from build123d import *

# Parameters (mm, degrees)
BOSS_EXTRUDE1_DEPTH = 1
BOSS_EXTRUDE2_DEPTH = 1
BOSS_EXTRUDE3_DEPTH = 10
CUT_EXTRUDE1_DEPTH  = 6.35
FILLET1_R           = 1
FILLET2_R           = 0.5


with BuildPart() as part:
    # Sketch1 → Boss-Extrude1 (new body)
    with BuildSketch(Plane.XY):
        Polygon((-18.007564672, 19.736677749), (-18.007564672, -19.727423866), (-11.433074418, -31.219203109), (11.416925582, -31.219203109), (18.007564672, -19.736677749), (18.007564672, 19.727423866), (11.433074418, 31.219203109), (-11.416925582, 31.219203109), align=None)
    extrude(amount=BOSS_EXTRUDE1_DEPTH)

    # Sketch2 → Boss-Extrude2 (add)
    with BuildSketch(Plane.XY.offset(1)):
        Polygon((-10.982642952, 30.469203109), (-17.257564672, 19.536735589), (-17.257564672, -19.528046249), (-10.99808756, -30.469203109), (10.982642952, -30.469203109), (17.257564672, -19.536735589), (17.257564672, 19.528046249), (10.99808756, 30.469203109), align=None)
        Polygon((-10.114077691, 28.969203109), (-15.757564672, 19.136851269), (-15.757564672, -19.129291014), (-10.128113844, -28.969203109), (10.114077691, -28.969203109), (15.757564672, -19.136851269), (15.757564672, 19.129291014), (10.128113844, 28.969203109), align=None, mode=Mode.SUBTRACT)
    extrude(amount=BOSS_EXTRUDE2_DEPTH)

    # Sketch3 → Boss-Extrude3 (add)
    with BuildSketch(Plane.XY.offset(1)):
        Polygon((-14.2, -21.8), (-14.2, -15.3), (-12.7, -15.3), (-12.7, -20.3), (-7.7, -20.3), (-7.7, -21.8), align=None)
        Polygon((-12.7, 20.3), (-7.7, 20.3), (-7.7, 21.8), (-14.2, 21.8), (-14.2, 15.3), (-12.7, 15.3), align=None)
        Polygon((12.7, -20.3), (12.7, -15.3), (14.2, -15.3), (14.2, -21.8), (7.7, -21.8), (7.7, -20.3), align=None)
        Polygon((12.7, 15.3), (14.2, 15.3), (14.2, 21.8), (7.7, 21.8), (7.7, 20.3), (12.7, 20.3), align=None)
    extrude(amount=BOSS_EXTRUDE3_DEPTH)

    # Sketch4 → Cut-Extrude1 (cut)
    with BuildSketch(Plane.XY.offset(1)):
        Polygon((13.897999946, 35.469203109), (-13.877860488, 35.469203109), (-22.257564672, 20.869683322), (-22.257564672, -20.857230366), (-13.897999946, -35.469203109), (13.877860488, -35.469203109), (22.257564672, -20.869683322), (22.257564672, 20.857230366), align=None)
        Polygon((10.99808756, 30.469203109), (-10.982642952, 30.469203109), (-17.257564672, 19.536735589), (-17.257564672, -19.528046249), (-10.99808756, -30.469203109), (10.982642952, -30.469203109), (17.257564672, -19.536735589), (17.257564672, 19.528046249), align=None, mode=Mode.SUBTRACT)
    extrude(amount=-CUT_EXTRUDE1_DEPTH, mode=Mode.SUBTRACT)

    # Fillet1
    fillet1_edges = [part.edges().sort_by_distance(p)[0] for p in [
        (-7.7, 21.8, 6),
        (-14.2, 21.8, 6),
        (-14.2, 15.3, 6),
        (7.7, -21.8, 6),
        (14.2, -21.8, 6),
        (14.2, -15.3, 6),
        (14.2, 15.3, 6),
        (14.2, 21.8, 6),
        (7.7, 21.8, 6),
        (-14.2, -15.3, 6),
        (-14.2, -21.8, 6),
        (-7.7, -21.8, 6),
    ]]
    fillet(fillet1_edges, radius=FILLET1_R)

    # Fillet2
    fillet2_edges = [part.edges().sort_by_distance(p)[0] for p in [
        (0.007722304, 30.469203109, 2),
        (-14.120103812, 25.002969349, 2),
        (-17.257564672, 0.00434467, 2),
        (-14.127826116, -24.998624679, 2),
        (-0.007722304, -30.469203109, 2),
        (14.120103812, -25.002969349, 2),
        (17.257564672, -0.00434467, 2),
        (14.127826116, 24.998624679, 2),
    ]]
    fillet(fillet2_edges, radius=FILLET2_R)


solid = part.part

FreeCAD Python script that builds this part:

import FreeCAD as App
import Part
import Sketcher

V = App.Vector


def edges_at(feature, points):
    """Names of the edges that pass closest to the given points."""
    edges = feature.Shape.Edges
    near = lambda p: min(range(len(edges)), key=lambda i: edges[i].distToShape(Part.Vertex(*p))[0])
    return sorted({f"Edge{near(p) + 1}" for p in points})

doc = App.newDocument("Part")
params = doc.addObject("Spreadsheet::Sheet", "Params")
for row, (alias, value) in enumerate([
    ("sketch1_width", "22.85 mm"),
    ("pad1_length", "1 mm"),
    ("pad2_length", "1 mm"),
    ("sketch3_width", "5 mm"),
    ("sketch3_width2", "6.5 mm"),
    ("pad3_length", "10 mm"),
    ("pocket1_length", "6.35 mm"),
    ("fillet_radius", "1 mm"),
    ("fillet2_radius", "0.5 mm"),
], start=1):
    params.set(f"A{row}", alias)
    params.set(f"B{row}", "=" + value)
    params.setAlias(f"B{row}", alias)

body = doc.addObject("PartDesign::Body", "Body")

# Sketch on XY plane
sketch1 = body.newObject("Sketcher::SketchObject", "Sketch")
sketch1.AttachmentSupport = (doc.getObject("XY_Plane"), [""])
sketch1.MapMode = "FlatFace"
sketch1.addGeometry([
    Part.LineSegment(V(-18, 20, 0), V(-18, -20, 0)),  # 0
    Part.LineSegment(V(-18, -20, 0), V(-11, -31, 0)),  # 1
    Part.LineSegment(V(-11, -31, 0), V(11, -31, 0)),  # 2
    Part.LineSegment(V(11, -31, 0), V(18, -20, 0)),  # 3
    Part.LineSegment(V(18, -20, 0), V(18, 20, 0)),  # 4
    Part.LineSegment(V(18, 20, 0), V(11, 31, 0)),  # 5
    Part.LineSegment(V(11, 31, 0), V(-11, 31, 0)),  # 6
    Part.LineSegment(V(-11, 31, 0), V(-18, 20, 0)),  # 7
], False)
sketch1.addConstraint([
    Sketcher.Constraint("Coincident", 0, 2, 1, 1),
    Sketcher.Constraint("Coincident", 1, 2, 2, 1),
    Sketcher.Constraint("Coincident", 2, 2, 3, 1),
    Sketcher.Constraint("Coincident", 3, 2, 4, 1),
    Sketcher.Constraint("Coincident", 4, 2, 5, 1),
    Sketcher.Constraint("Coincident", 5, 2, 6, 1),
    Sketcher.Constraint("Coincident", 6, 2, 7, 1),
    Sketcher.Constraint("Coincident", 7, 2, 0, 1),
    Sketcher.Constraint("Vertical", 0),
    Sketcher.Constraint("Horizontal", 2),
    Sketcher.Constraint("Vertical", 4),
    Sketcher.Constraint("Horizontal", 6),
    Sketcher.Constraint("Symmetric", 0, 2, 4, 2, -1, 1),
    Sketcher.Constraint("Symmetric", 1, 2, 5, 2, -1, 1),
    Sketcher.Constraint("Parallel", 3, 7),
    Sketcher.Constraint("Equal", 2, 6),
    Sketcher.Constraint("Equal", 1, 3),
    Sketcher.Constraint("DistanceX", 2, 1, 2, 2, 22.85),
    Sketcher.Constraint("DistanceY", 0, 2, 0, 1, 39.464102),
    Sketcher.Constraint("Distance", 1, 13.239521),
    Sketcher.Constraint("DistanceX", 0, 2, 1, 2, 6.57449),
    Sketcher.Constraint("DistanceX", 2, 2, 3, 2, 6.590639),
])
sketch1.setExpression("Constraints[17]", "Params.sketch1_width")
pad1 = body.newObject("PartDesign::Pad", "Pad")
pad1.Profile = sketch1
pad1.setExpression("Length", "Params.pad1_length")

# Sketch on XY plane
sketch2 = body.newObject("Sketcher::SketchObject", "Sketch001")
sketch2.AttachmentSupport = (doc.getObject("XY_Plane"), [""])
sketch2.MapMode = "FlatFace"
sketch2.AttachmentOffset = App.Placement(V(0, 0, 1), App.Rotation())
sketch2.addGeometry([
    Part.LineSegment(V(-10.982643, 30.469203, 0), V(-17.257565, 19.536736, 0)),  # 0
    Part.LineSegment(V(-17.257565, 19.536736, 0), V(-17.257565, -19.528046, 0)),  # 1
    Part.LineSegment(V(-17.257565, -19.528046, 0), V(-10.998088, -30.469203, 0)),  # 2
    Part.LineSegment(V(-10.998088, -30.469203, 0), V(10.982643, -30.469203, 0)),  # 3
    Part.LineSegment(V(10.982643, -30.469203, 0), V(17.257565, -19.536736, 0)),  # 4
    Part.LineSegment(V(17.257565, -19.536736, 0), V(17.257565, 19.528046, 0)),  # 5
    Part.LineSegment(V(17.257565, 19.528046, 0), V(10.998088, 30.469203, 0)),  # 6
    Part.LineSegment(V(10.998088, 30.469203, 0), V(-10.982643, 30.469203, 0)),  # 7
    Part.LineSegment(V(-15.757565, 19.136851, 0), V(-10.114078, 28.969203, 0)),  # 8
    Part.LineSegment(V(-10.114078, 28.969203, 0), V(10.128114, 28.969203, 0)),  # 9
    Part.LineSegment(V(10.128114, 28.969203, 0), V(15.757565, 19.129291, 0)),  # 10
    Part.LineSegment(V(15.757565, 19.129291, 0), V(15.757565, -19.136851, 0)),  # 11
    Part.LineSegment(V(15.757565, -19.136851, 0), V(10.114078, -28.969203, 0)),  # 12
    Part.LineSegment(V(10.114078, -28.969203, 0), V(-10.128114, -28.969203, 0)),  # 13
    Part.LineSegment(V(-10.128114, -28.969203, 0), V(-15.757565, -19.129291, 0)),  # 14
    Part.LineSegment(V(-15.757565, -19.129291, 0), V(-15.757565, 19.136851, 0)),  # 15
], False)
sketch2.addConstraint([
    Sketcher.Constraint("Coincident", 0, 2, 1, 1),
    Sketcher.Constraint("Coincident", 1, 2, 2, 1),
    Sketcher.Constraint("Coincident", 2, 2, 3, 1),
    Sketcher.Constraint("Coincident", 3, 2, 4, 1),
    Sketcher.Constraint("Coincident", 4, 2, 5, 1),
    Sketcher.Constraint("Coincident", 5, 2, 6, 1),
    Sketcher.Constraint("Coincident", 6, 2, 7, 1),
    Sketcher.Constraint("Coincident", 7, 2, 0, 1),
    Sketcher.Constraint("Coincident", 8, 2, 9, 1),
    Sketcher.Constraint("Coincident", 9, 2, 10, 1),
    Sketcher.Constraint("Coincident", 10, 2, 11, 1),
    Sketcher.Constraint("Coincident", 11, 2, 12, 1),
    Sketcher.Constraint("Coincident", 12, 2, 13, 1),
    Sketcher.Constraint("Coincident", 13, 2, 14, 1),
    Sketcher.Constraint("Coincident", 14, 2, 15, 1),
    Sketcher.Constraint("Coincident", 15, 2, 8, 1),
    Sketcher.Constraint("Vertical", 1),
    Sketcher.Constraint("Horizontal", 3),
    Sketcher.Constraint("Vertical", 5),
    Sketcher.Constraint("Horizontal", 7),
    Sketcher.Constraint("Horizontal", 9),
    Sketcher.Constraint("Vertical", 11),
    Sketcher.Constraint("Horizontal", 13),
    Sketcher.Constraint("Vertical", 15),
    Sketcher.Constraint("Symmetric", 0, 2, 4, 2, -1, 1),
    Sketcher.Constraint("Symmetric", 2, 2, 6, 2, -1, 1),
    Sketcher.Constraint("Symmetric", 8, 2, 12, 2, -1, 1),
    Sketcher.Constraint("Symmetric", 10, 2, 14, 2, -1, 1),
    Sketcher.Constraint("Parallel", 0, 4),
    Sketcher.Constraint("Parallel", 2, 6),
    Sketcher.Constraint("Parallel", 4, 8),
    Sketcher.Constraint("Parallel", 6, 10),
    Sketcher.Constraint("Parallel", 8, 12),
    Sketcher.Constraint("Parallel", 10, 14),
    Sketcher.Constraint("DistanceY", 8, 2, 7, 2, 1.5),
    Sketcher.Constraint("DistanceX", 10, 2, 5, 2, 1.5),
    Sketcher.Constraint("DistanceX", 3, 1, 3, 2, 21.980731),
    Sketcher.Constraint("DistanceX", 9, 1, 9, 2, 20.242192),
    Sketcher.Constraint("DistanceY", 1, 2, 1, 1, 39.064782),
    Sketcher.Constraint("DistanceY", 11, 2, 11, 1, 38.266142),
    Sketcher.Constraint("DistanceY", -1, 1, 10, 2, 19.129291),
    Sketcher.Constraint("DistanceY", 2, 2, 0, 2, 50.005939),
    Sketcher.Constraint("DistanceX", 3, 2, 4, 2, 6.274922),
    Sketcher.Constraint("DistanceX", 1, 2, 4, 2, 34.515129),
])
pad2 = body.newObject("PartDesign::Pad", "Pad001")
pad2.Profile = sketch2
pad2.setExpression("Length", "Params.pad2_length")

# Sketch on XY plane
sketch3 = body.newObject("Sketcher::SketchObject", "Sketch002")
sketch3.AttachmentSupport = (doc.getObject("XY_Plane"), [""])
sketch3.MapMode = "FlatFace"
sketch3.AttachmentOffset = App.Placement(V(0, 0, 1), App.Rotation())
sketch3.addGeometry([
    Part.LineSegment(V(-14.2, -15.3, 0), V(-14.2, -21.8, 0)),  # 0
    Part.LineSegment(V(-14.2, -21.8, 0), V(-7.7, -21.8, 0)),  # 1
    Part.LineSegment(V(-7.7, -21.8, 0), V(-7.7, -20.3, 0)),  # 2
    Part.LineSegment(V(-7.7, -20.3, 0), V(-12.7, -20.3, 0)),  # 3
    Part.LineSegment(V(-12.7, -20.3, 0), V(-12.7, -15.3, 0)),  # 4
    Part.LineSegment(V(-12.7, -15.3, 0), V(-14.2, -15.3, 0)),  # 5
    Part.LineSegment(V(-12.7, 20.3, 0), V(-7.7, 20.3, 0)),  # 6
    Part.LineSegment(V(-7.7, 20.3, 0), V(-7.7, 21.8, 0)),  # 7
    Part.LineSegment(V(-7.7, 21.8, 0), V(-14.2, 21.8, 0)),  # 8
    Part.LineSegment(V(-14.2, 21.8, 0), V(-14.2, 15.3, 0)),  # 9
    Part.LineSegment(V(-14.2, 15.3, 0), V(-12.7, 15.3, 0)),  # 10
    Part.LineSegment(V(-12.7, 15.3, 0), V(-12.7, 20.3, 0)),  # 11
    Part.LineSegment(V(12.7, -15.3, 0), V(12.7, -20.3, 0)),  # 12
    Part.LineSegment(V(12.7, -20.3, 0), V(7.7, -20.3, 0)),  # 13
    Part.LineSegment(V(7.7, -20.3, 0), V(7.7, -21.8, 0)),  # 14
    Part.LineSegment(V(7.7, -21.8, 0), V(14.2, -21.8, 0)),  # 15
    Part.LineSegment(V(14.2, -21.8, 0), V(14.2, -15.3, 0)),  # 16
    Part.LineSegment(V(14.2, -15.3, 0), V(12.7, -15.3, 0)),  # 17
    Part.LineSegment(V(12.7, 15.3, 0), V(14.2, 15.3, 0)),  # 18
    Part.LineSegment(V(14.2, 15.3, 0), V(14.2, 21.8, 0)),  # 19
    Part.LineSegment(V(14.2, 21.8, 0), V(7.7, 21.8, 0)),  # 20
    Part.LineSegment(V(7.7, 21.8, 0), V(7.7, 20.3, 0)),  # 21
    Part.LineSegment(V(7.7, 20.3, 0), V(12.7, 20.3, 0)),  # 22
    Part.LineSegment(V(12.7, 20.3, 0), V(12.7, 15.3, 0)),  # 23
], False)
sketch3.addConstraint([
    Sketcher.Constraint("Coincident", 0, 2, 1, 1),
    Sketcher.Constraint("Coincident", 1, 2, 2, 1),
    Sketcher.Constraint("Coincident", 2, 2, 3, 1),
    Sketcher.Constraint("Coincident", 3, 2, 4, 1),
    Sketcher.Constraint("Coincident", 4, 2, 5, 1),
    Sketcher.Constraint("Coincident", 5, 2, 0, 1),
    Sketcher.Constraint("Coincident", 6, 2, 7, 1),
    Sketcher.Constraint("Coincident", 7, 2, 8, 1),
    Sketcher.Constraint("Coincident", 8, 2, 9, 1),
    Sketcher.Constraint("Coincident", 9, 2, 10, 1),
    Sketcher.Constraint("Coincident", 10, 2, 11, 1),
    Sketcher.Constraint("Coincident", 11, 2, 6, 1),
    Sketcher.Constraint("Coincident", 12, 2, 13, 1),
    Sketcher.Constraint("Coincident", 13, 2, 14, 1),
    Sketcher.Constraint("Coincident", 14, 2, 15, 1),
    Sketcher.Constraint("Coincident", 15, 2, 16, 1),
    Sketcher.Constraint("Coincident", 16, 2, 17, 1),
    Sketcher.Constraint("Coincident", 17, 2, 12, 1),
    Sketcher.Constraint("Coincident", 18, 2, 19, 1),
    Sketcher.Constraint("Coincident", 19, 2, 20, 1),
    Sketcher.Constraint("Coincident", 20, 2, 21, 1),
    Sketcher.Constraint("Coincident", 21, 2, 22, 1),
    Sketcher.Constraint("Coincident", 22, 2, 23, 1),
    Sketcher.Constraint("Coincident", 23, 2, 18, 1),
    Sketcher.Constraint("Vertical", 0),
    Sketcher.Constraint("Horizontal", 1),
    Sketcher.Constraint("Vertical", 2),
    Sketcher.Constraint("Horizontal", 3),
    Sketcher.Constraint("Vertical", 4),
    Sketcher.Constraint("Horizontal", 5),
    Sketcher.Constraint("Horizontal", 6),
    Sketcher.Constraint("Vertical", 7),
    Sketcher.Constraint("Horizontal", 8),
    Sketcher.Constraint("Vertical", 9),
    Sketcher.Constraint("Horizontal", 10),
    Sketcher.Constraint("Vertical", 11),
    Sketcher.Constraint("Vertical", 12),
    Sketcher.Constraint("Horizontal", 13),
    Sketcher.Constraint("Vertical", 14),
    Sketcher.Constraint("Horizontal", 15),
    Sketcher.Constraint("Vertical", 16),
    Sketcher.Constraint("Horizontal", 17),
    Sketcher.Constraint("Horizontal", 18),
    Sketcher.Constraint("Vertical", 19),
    Sketcher.Constraint("Horizontal", 20),
    Sketcher.Constraint("Vertical", 21),
    Sketcher.Constraint("Horizontal", 22),
    Sketcher.Constraint("Vertical", 23),
    Sketcher.Constraint("Symmetric", 11, 2, 12, 2, -1, 1),
    Sketcher.Constraint("Symmetric", 7, 2, 14, 2, -1, 1),
    Sketcher.Constraint("Symmetric", 9, 2, 16, 2, -1, 1),
    Sketcher.Constraint("Symmetric", 5, 2, 18, 2, -1, 1),
    Sketcher.Constraint("Symmetric", 1, 2, 20, 2, -1, 1),
    Sketcher.Constraint("Symmetric", 3, 2, 22, 2, -1, 1),
    Sketcher.Constraint("Symmetric", 3, 2, 12, 2, -2),
    Sketcher.Constraint("Symmetric", 1, 2, 14, 2, -2),
    Sketcher.Constraint("Symmetric", 5, 2, 16, 2, -2),
    Sketcher.Constraint("Equal", 20, 0),
    Sketcher.Constraint("Equal", 18, 2),
    Sketcher.Constraint("DistanceX", 3, 2, 3, 1, 5.0),
    Sketcher.Constraint("DistanceX", 1, 1, 1, 2, 6.5),
    Sketcher.Constraint("DistanceX", 0, 2, -1, 1, 14.2),
    Sketcher.Constraint("DistanceY", 0, 2, -1, 1, 21.8),
])
sketch3.setExpression("Constraints[59]", "Params.sketch3_width")
sketch3.setExpression("Constraints[60]", "Params.sketch3_width2")
pad3 = body.newObject("PartDesign::Pad", "Pad002")
pad3.Profile = sketch3
pad3.setExpression("Length", "Params.pad3_length")

# Sketch on XY plane
sketch4 = body.newObject("Sketcher::SketchObject", "Sketch003")
sketch4.AttachmentSupport = (doc.getObject("XY_Plane"), [""])
sketch4.MapMode = "FlatFace"
sketch4.AttachmentOffset = App.Placement(V(0, 0, 1), App.Rotation())
sketch4.addGeometry([
    Part.LineSegment(V(14, 35, 0), V(-14, 35, 0)),  # 0
    Part.LineSegment(V(-14, 35, 0), V(-22, 21, 0)),  # 1
    Part.LineSegment(V(-22, 21, 0), V(-22, -21, 0)),  # 2
    Part.LineSegment(V(-22, -21, 0), V(-14, -35, 0)),  # 3
    Part.LineSegment(V(-14, -35, 0), V(14, -35, 0)),  # 4
    Part.LineSegment(V(14, -35, 0), V(22, -21, 0)),  # 5
    Part.LineSegment(V(22, -21, 0), V(22, 21, 0)),  # 6
    Part.LineSegment(V(22, 21, 0), V(14, 35, 0)),  # 7
    Part.LineSegment(V(-11, 30, 0), V(11, 30, 0)),  # 8
    Part.LineSegment(V(11, 30, 0), V(17, 20, 0)),  # 9
    Part.LineSegment(V(17, 20, 0), V(17, -20, 0)),  # 10
    Part.LineSegment(V(17, -20, 0), V(11, -30, 0)),  # 11
    Part.LineSegment(V(11, -30, 0), V(-11, -30, 0)),  # 12
    Part.LineSegment(V(-11, -30, 0), V(-17, -20, 0)),  # 13
    Part.LineSegment(V(-17, -20, 0), V(-17, 20, 0)),  # 14
    Part.LineSegment(V(-17, 20, 0), V(-11, 30, 0)),  # 15
], False)
sketch4.addConstraint([
    Sketcher.Constraint("Coincident", 0, 2, 1, 1),
    Sketcher.Constraint("Coincident", 1, 2, 2, 1),
    Sketcher.Constraint("Coincident", 2, 2, 3, 1),
    Sketcher.Constraint("Coincident", 3, 2, 4, 1),
    Sketcher.Constraint("Coincident", 4, 2, 5, 1),
    Sketcher.Constraint("Coincident", 5, 2, 6, 1),
    Sketcher.Constraint("Coincident", 6, 2, 7, 1),
    Sketcher.Constraint("Coincident", 7, 2, 0, 1),
    Sketcher.Constraint("Coincident", 8, 2, 9, 1),
    Sketcher.Constraint("Coincident", 9, 2, 10, 1),
    Sketcher.Constraint("Coincident", 10, 2, 11, 1),
    Sketcher.Constraint("Coincident", 11, 2, 12, 1),
    Sketcher.Constraint("Coincident", 12, 2, 13, 1),
    Sketcher.Constraint("Coincident", 13, 2, 14, 1),
    Sketcher.Constraint("Coincident", 14, 2, 15, 1),
    Sketcher.Constraint("Coincident", 15, 2, 8, 1),
    Sketcher.Constraint("Horizontal", 0),
    Sketcher.Constraint("Vertical", 2),
    Sketcher.Constraint("Horizontal", 4),
    Sketcher.Constraint("Vertical", 6),
    Sketcher.Constraint("Horizontal", 8),
    Sketcher.Constraint("Vertical", 10),
    Sketcher.Constraint("Horizontal", 12),
    Sketcher.Constraint("Vertical", 14),
    Sketcher.Constraint("Symmetric", 0, 2, 4, 2, -1, 1),
    Sketcher.Constraint("Symmetric", 1, 2, 5, 2, -1, 1),
    Sketcher.Constraint("Symmetric", 8, 2, 12, 2, -1, 1),
    Sketcher.Constraint("Symmetric", 9, 2, 13, 2, -1, 1),
    Sketcher.Constraint("Parallel", 3, 7),
    Sketcher.Constraint("Parallel", 7, 9),
    Sketcher.Constraint("Parallel", 5, 11),
    Sketcher.Constraint("Parallel", 11, 15),
    Sketcher.Constraint("Equal", 0, 4),
    Sketcher.Constraint("Equal", 8, 12),
    Sketcher.Constraint("DistanceY", 8, 2, 7, 2, 5.0),
    Sketcher.Constraint("DistanceX", 9, 2, 6, 2, 5.0),
    Sketcher.Constraint("DistanceX", 3, 2, -1, 1, 13.898),
    Sketcher.Constraint("DistanceX", 0, 2, 0, 1, 27.77586),
    Sketcher.Constraint("DistanceX", 8, 1, 8, 2, 21.980731),
    Sketcher.Constraint("DistanceY", 10, 2, 10, 1, 39.064782),
    Sketcher.Constraint("Distance", 1, 16.833461),
    Sketcher.Constraint("DistanceY", 2, 2, 2, 1, 41.726914),
    Sketcher.Constraint("DistanceY", 2, 2, -1, 1, 20.85723),
    Sketcher.Constraint("DistanceX", 0, 2, 8, 2, 24.875948),
])
pocket1 = body.newObject("PartDesign::Pocket", "Pocket")
pocket1.Profile = sketch4
pocket1.setExpression("Length", "Params.pocket1_length")
doc.recompute()

fillet = body.newObject("PartDesign::Fillet", "Fillet")
fillet.Base = (pocket1, edges_at(pocket1, [
    (-7.7, 21.8, 6),
    (-14.2, 21.8, 6),
    (-14.2, 15.3, 6),
    (7.7, -21.8, 6),
    (14.2, -21.8, 6),
    (14.2, -15.3, 6),
    (14.2, 15.3, 6),
    (14.2, 21.8, 6),
    (7.7, 21.8, 6),
    (-14.2, -15.3, 6),
    (-14.2, -21.8, 6),
    (-7.7, -21.8, 6),
]))
fillet.setExpression("Radius", "Params.fillet_radius")
doc.recompute()

fillet2 = body.newObject("PartDesign::Fillet", "Fillet001")
fillet2.Base = (fillet, edges_at(fillet, [
    (0.008, 30.469, 2),
    (-14.12, 25.003, 2),
    (-17.258, 0.004, 2),
    (-14.128, -24.999, 2),
    (-0.008, -30.469, 2),
    (14.12, -25.003, 2),
    (17.258, -0.004, 2),
    (14.128, 24.999, 2),
]))
fillet2.setExpression("Radius", "Params.fillet2_radius")

doc.recompute()
